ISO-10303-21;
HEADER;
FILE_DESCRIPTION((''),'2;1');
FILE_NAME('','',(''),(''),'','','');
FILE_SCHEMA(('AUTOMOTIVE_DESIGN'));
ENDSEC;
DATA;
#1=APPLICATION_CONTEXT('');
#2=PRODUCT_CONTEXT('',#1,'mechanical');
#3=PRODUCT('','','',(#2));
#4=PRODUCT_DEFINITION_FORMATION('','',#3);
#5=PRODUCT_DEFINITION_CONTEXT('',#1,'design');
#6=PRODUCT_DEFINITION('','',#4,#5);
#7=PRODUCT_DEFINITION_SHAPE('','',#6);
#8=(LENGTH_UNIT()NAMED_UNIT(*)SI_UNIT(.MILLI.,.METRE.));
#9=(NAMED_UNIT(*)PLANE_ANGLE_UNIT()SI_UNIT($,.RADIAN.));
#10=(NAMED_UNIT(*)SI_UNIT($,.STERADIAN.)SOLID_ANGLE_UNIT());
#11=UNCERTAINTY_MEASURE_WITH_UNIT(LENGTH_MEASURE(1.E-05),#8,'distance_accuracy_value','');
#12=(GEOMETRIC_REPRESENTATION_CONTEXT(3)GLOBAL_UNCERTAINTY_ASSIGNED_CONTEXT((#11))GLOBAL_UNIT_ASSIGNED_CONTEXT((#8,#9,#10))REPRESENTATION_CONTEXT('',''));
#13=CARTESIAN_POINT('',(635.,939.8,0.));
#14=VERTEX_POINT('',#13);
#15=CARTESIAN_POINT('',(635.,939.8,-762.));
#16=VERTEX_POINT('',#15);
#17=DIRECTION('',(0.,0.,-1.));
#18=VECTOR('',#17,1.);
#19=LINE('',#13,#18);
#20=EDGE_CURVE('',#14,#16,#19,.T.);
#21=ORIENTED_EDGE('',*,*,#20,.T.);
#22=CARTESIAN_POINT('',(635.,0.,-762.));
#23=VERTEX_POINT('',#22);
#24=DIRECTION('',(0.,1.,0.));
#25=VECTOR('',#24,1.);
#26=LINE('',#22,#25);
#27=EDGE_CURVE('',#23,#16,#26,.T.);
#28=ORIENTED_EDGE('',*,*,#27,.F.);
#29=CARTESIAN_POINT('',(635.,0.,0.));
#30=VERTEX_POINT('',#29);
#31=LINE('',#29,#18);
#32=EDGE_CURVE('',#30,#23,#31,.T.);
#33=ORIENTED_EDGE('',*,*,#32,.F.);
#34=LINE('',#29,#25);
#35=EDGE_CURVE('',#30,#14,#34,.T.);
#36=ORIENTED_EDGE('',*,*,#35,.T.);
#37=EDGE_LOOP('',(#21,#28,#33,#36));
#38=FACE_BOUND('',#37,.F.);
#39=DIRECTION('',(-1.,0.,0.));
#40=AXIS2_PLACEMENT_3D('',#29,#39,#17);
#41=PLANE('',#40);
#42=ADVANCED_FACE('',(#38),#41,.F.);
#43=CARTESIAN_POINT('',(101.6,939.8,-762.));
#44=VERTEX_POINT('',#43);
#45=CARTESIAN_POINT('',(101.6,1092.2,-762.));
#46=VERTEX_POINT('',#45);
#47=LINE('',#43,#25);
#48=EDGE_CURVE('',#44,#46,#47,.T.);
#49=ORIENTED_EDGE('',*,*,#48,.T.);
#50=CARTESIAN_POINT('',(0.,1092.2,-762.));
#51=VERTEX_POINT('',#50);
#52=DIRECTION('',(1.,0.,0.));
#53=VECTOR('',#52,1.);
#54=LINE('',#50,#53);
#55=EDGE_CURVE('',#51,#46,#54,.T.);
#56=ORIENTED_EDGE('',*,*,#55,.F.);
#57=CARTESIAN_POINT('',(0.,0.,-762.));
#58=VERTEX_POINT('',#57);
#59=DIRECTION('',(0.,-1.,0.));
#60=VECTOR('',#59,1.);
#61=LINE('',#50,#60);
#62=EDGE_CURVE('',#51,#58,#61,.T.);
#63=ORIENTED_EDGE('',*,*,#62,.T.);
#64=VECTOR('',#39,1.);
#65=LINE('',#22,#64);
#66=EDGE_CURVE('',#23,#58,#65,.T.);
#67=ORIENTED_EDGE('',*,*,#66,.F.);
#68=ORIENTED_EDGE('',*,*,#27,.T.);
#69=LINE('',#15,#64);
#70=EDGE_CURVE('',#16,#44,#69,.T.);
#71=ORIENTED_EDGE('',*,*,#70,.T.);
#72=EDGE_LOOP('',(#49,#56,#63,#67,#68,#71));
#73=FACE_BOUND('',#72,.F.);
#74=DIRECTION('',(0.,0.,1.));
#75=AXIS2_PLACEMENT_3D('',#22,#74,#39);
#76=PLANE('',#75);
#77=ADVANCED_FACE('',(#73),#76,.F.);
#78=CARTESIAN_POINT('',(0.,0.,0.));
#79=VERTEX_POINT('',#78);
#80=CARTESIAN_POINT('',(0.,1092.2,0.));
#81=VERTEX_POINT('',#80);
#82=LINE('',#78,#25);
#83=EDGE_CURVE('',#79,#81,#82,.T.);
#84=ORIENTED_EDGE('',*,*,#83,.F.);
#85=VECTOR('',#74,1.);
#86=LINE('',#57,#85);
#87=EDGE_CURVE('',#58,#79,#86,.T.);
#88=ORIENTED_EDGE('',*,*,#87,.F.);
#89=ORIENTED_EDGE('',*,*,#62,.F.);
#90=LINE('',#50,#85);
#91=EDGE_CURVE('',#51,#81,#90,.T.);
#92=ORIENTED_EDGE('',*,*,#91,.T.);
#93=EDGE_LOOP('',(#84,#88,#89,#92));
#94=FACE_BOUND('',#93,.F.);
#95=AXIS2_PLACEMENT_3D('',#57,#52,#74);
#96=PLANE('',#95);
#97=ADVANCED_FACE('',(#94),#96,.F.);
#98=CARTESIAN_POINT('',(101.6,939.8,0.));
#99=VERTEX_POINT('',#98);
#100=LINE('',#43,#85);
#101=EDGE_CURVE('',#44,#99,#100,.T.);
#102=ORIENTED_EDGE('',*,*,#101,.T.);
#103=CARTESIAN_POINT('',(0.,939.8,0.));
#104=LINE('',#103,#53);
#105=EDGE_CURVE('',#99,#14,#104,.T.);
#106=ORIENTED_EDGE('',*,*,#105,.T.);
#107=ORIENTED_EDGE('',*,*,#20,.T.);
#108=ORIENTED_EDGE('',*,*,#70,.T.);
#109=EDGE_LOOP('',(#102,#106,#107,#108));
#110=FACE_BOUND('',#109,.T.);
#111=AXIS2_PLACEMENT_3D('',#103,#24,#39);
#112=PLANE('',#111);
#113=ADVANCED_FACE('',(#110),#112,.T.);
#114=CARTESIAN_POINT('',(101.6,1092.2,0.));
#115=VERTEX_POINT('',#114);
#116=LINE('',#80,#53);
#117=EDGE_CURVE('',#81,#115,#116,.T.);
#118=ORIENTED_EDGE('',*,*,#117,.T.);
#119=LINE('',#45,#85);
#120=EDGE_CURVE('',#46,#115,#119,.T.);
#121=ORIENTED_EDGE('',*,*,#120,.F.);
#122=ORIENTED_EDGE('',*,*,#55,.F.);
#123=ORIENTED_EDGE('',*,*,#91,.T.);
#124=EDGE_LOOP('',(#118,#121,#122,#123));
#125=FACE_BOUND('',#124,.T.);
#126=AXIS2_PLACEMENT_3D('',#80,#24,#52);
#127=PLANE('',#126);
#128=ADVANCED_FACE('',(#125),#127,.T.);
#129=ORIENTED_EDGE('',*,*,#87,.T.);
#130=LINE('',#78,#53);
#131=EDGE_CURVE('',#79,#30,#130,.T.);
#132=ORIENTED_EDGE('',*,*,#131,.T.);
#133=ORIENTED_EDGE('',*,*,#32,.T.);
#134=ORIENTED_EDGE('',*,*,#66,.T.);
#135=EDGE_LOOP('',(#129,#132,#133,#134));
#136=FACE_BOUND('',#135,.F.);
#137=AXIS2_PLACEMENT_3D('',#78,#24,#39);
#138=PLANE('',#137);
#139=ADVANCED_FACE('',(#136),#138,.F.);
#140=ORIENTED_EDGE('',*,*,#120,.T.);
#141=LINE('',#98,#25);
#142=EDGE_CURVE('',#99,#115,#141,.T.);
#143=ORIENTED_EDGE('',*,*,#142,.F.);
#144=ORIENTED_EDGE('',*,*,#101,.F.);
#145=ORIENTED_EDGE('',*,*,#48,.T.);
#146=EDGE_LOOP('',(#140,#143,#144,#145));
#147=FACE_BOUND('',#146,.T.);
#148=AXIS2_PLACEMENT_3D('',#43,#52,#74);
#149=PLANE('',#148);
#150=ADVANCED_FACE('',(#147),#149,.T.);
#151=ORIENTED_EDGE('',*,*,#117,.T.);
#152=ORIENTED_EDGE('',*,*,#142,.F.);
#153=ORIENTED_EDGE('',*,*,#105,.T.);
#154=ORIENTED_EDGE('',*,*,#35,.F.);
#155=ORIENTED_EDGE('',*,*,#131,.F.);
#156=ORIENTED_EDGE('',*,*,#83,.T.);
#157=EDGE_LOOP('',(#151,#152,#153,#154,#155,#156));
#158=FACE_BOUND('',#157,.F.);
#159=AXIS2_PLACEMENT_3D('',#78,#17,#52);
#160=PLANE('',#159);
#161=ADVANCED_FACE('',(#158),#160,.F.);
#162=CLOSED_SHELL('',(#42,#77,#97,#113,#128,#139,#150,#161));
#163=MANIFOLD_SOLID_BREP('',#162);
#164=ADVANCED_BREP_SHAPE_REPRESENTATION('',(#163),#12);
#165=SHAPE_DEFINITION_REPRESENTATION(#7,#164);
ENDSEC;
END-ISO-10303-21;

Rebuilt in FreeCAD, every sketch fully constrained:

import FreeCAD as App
import Part
import Sketcher

V = App.Vector
Q = App.Units.Quantity

doc = App.newDocument("Part")
body = doc.addObject("PartDesign::Body", "Body")

sketch1 = doc.addObject("Sketcher::SketchObject", "Sketch")
body.addObject(sketch1)
sketch1.AttachmentSupport = (doc.XZ_Plane, [""])
sketch1.MapMode = "FlatFace"
sketch1.addGeometry(Part.LineSegment(V(0, -762, 0), V(0, 0, 0)), False)
sketch1.addGeometry(Part.LineSegment(V(0, 0, 0), V(635, 0, 0)), False)
sketch1.addGeometry(Part.LineSegment(V(635, 0, 0), V(635, -762, 0)), False)
sketch1.addGeometry(Part.LineSegment(V(635, -762, 0), V(0, -762, 0)), False)
sketch1.addConstraint(Sketcher.Constraint("Coincident", 0, 2, 1, 1))
sketch1.addConstraint(Sketcher.Constraint("Coincident", 1, 2, 2, 1))
sketch1.addConstraint(Sketcher.Constraint("Coincident", 2, 2, 3, 1))
sketch1.addConstraint(Sketcher.Constraint("Coincident", 3, 2, 0, 1))
sketch1.addConstraint(Sketcher.Constraint("Vertical", 0))
sketch1.addConstraint(Sketcher.Constraint("Horizontal", 1))
sketch1.addConstraint(Sketcher.Constraint("Vertical", 2))
sketch1.addConstraint(Sketcher.Constraint("Horizontal", 3))
sketch1.addConstraint(Sketcher.Constraint("Coincident", 0, 2, -1, 1))
sketch1.addConstraint(Sketcher.Constraint("DistanceX", 1, 1, 1, 2, Q("25 in")))
sketch1.addConstraint(Sketcher.Constraint("DistanceY", 0, 1, 0, 2, Q("30 in")))
pad1 = doc.addObject("PartDesign::Pad", "Pad")
body.addObject(pad1)
pad1.Profile = sketch1
pad1.Length = Q("37 in")
pad1.Reversed = True

sketch2 = doc.addObject("Sketcher::SketchObject", "Sketch001")
body.addObject(sketch2)
sketch2.AttachmentSupport = (doc.XZ_Plane, [""])
sketch2.MapMode = "FlatFace"
sketch2.AttachmentOffset = App.Placement(V(0, 0, -37 * 25.4), App.Rotation())
sketch2.addGeometry(Part.LineSegment(V(102, -762, 0), V(0, -762, 0)), False)
sketch2.addGeometry(Part.LineSegment(V(0, -762, 0), V(0, 0, 0)), False)
sketch2.addGeometry(Part.LineSegment(V(0, 0, 0), V(102, 0, 0)), False)
sketch2.addGeometry(Part.LineSegment(V(102, 0, 0), V(102, -762, 0)), False)
sketch2.addConstraint(Sketcher.Constraint("Coincident", 0, 2, 1, 1))
sketch2.addConstraint(Sketcher.Constraint("Coincident", 1, 2, 2, 1))
sketch2.addConstraint(Sketcher.Constraint("Coincident", 2, 2, 3, 1))
sketch2.addConstraint(Sketcher.Constraint("Coincident", 3, 2, 0, 1))
sketch2.addConstraint(Sketcher.Constraint("Horizontal", 0))
sketch2.addConstraint(Sketcher.Constraint("Vertical", 1))
sketch2.addConstraint(Sketcher.Constraint("Horizontal", 2))
sketch2.addConstraint(Sketcher.Constraint("Vertical", 3))
sketch2.addConstraint(Sketcher.Constraint("Coincident", 1, 2, -1, 1))
sketch2.addConstraint(Sketcher.Constraint("DistanceX", 0, 2, 0, 1, Q("4 in")))
sketch2.addConstraint(Sketcher.Constraint("DistanceY", 1, 1, 1, 2, Q("30 in")))
pad2 = doc.addObject("PartDesign::Pad", "Pad001")
body.addObject(pad2)
pad2.Profile = sketch2
pad2.Length = Q("6 in")
pad2.Reversed = True

doc.recompute()
